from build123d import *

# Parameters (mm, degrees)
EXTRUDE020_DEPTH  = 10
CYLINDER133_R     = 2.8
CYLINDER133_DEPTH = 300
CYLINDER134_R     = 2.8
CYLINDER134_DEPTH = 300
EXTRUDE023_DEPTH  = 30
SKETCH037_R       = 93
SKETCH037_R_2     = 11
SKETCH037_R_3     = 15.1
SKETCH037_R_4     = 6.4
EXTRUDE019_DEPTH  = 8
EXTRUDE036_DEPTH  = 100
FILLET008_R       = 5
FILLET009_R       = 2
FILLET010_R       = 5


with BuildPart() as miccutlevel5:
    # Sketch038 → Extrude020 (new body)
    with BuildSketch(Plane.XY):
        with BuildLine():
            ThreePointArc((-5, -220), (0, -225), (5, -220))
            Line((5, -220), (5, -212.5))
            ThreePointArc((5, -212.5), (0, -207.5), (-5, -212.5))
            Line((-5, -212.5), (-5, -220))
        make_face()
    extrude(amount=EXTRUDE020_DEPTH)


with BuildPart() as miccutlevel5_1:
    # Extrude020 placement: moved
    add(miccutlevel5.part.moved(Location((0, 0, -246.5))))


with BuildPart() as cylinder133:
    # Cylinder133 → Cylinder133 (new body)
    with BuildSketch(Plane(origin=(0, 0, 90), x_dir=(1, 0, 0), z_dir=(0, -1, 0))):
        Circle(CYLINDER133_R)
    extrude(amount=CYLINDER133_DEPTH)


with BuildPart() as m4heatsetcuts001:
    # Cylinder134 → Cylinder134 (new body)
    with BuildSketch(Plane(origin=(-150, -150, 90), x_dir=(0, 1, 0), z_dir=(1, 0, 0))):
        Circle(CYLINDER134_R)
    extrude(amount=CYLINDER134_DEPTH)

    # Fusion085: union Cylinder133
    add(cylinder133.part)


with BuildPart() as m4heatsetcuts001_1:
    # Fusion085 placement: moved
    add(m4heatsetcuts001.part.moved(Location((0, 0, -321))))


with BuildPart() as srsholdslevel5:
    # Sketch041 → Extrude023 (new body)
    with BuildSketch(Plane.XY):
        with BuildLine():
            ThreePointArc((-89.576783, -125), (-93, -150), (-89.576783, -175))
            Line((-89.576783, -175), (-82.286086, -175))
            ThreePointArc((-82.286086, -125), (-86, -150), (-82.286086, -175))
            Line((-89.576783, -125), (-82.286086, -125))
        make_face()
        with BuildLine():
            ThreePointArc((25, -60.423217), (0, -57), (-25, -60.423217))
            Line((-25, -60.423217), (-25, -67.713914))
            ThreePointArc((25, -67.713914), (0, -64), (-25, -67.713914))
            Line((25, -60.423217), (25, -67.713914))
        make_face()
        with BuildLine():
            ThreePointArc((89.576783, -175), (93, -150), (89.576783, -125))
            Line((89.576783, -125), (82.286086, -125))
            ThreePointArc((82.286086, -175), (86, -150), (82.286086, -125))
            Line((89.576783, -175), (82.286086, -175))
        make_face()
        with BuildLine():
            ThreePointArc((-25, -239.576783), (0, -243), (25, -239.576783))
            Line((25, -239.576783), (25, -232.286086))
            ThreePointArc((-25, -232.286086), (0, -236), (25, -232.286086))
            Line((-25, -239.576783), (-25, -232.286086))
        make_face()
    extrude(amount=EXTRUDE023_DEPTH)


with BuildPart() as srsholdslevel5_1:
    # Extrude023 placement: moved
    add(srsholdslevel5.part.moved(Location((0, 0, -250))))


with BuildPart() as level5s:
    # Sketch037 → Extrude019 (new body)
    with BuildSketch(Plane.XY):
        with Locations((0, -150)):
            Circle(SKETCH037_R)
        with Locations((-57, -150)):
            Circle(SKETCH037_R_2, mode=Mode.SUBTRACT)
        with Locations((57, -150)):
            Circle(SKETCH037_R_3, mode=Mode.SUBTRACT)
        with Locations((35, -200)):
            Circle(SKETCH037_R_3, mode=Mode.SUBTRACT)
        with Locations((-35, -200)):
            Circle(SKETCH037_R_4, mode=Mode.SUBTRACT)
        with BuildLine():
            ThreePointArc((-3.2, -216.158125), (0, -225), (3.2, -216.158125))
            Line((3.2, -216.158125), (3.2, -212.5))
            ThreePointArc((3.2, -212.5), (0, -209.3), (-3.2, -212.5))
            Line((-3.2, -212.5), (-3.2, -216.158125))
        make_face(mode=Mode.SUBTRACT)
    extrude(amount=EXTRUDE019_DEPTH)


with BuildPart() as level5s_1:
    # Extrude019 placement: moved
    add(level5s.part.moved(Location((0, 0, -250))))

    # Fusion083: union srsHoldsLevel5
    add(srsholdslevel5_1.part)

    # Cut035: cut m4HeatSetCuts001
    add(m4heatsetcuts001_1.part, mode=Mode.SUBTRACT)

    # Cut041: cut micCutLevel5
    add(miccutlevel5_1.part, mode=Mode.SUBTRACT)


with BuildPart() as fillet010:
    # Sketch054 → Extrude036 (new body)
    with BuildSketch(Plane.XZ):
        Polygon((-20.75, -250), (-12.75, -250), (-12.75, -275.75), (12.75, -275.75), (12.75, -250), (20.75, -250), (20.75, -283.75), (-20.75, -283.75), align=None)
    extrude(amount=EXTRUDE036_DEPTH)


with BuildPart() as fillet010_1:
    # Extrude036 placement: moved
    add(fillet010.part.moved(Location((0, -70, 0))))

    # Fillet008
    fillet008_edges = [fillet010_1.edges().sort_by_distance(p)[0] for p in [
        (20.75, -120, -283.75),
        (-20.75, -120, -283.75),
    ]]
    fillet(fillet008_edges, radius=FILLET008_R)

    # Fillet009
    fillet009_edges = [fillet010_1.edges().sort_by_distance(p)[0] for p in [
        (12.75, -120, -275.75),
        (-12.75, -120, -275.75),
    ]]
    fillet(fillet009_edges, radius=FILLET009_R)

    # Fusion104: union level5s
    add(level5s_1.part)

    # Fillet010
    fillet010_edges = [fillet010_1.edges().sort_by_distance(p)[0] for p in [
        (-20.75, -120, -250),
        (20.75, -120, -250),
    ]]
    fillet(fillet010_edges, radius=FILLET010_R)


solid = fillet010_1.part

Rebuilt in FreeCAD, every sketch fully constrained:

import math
import FreeCAD as App
import Part
import Sketcher
Q = App.Units.Quantity


def edges_at(feature, points):
    """Names of the edges that pass closest to the given points."""
    edges = feature.Shape.Edges
    near = lambda p: min(range(len(edges)), key=lambda i: edges[i].distToShape(Part.Vertex(*p))[0])
    return sorted({f"Edge{near(p) + 1}" for p in points})


def add_polygon(sketch, points):
    """Adds a closed chain of lines whose ends are joined by coincident constraints."""
    first, n = sketch.GeometryCount, len(points)
    for a, b in zip(points, points[1:] + points[:1]):
        sketch.addGeometry(Part.LineSegment(App.Vector(*a, 0), App.Vector(*b, 0)), False)
    for i in range(n):
        sketch.addConstraint(Sketcher.Constraint("Coincident", first + i, 2, first + (i + 1) % n, 1))

doc = App.newDocument("Part")
body = doc.addObject("PartDesign::Body", "Body")

sketch1 = body.newObject("Sketcher::SketchObject", "Sketch")
sketch1.AttachmentSupport = (doc.getObject("XY_Plane"), [""])
sketch1.MapMode = "FlatFace"
sketch1.addGeometry(Part.ArcOfCircle(Part.Circle(App.Vector(0, -220, 0), App.Vector(0, 0, 1), 5), math.radians(180), math.radians(360)), False)
sketch1.addGeometry(Part.LineSegment(App.Vector(5, -220, 0), App.Vector(5, -212.5, 0)), False)
sketch1.addGeometry(Part.ArcOfCircle(Part.Circle(App.Vector(0, -212.5, 0), App.Vector(0, 0, 1), 5), math.radians(0), math.radians(180)), False)
sketch1.addGeometry(Part.LineSegment(App.Vector(-5, -212.5, 0), App.Vector(-5, -220, 0)), False)
sketch1.addConstraint(Sketcher.Constraint("Tangent", 0, 2, 1, 1))
sketch1.addConstraint(Sketcher.Constraint("Tangent", 1, 2, 2, 1))
sketch1.addConstraint(Sketcher.Constraint("Tangent", 2, 2, 3, 1))
sketch1.addConstraint(Sketcher.Constraint("Tangent", 3, 2, 0, 1))
sketch1.addConstraint(Sketcher.Constraint("Vertical", 1))
sketch1.addConstraint(Sketcher.Constraint("Vertical", 3))
sketch1.addConstraint(Sketcher.Constraint("PointOnObject", 0, 3, -2))
sketch1.addConstraint(Sketcher.Constraint("Radius", 0, Q("5 mm")))
sketch1.addConstraint(Sketcher.Constraint("DistanceY", 1, 1, 1, 2, Q("7.5 mm")))
sketch1.addConstraint(Sketcher.Constraint("DistanceY", 0, 3, -1, 1, Q("220 mm")))
pad1 = body.newObject("PartDesign::Pad", "Pad")
pad1.Profile = sketch1
pad1.Length = 10
body2 = doc.addObject("PartDesign::Body", "Body001")
doc.recompute()

body.Placement = App.Placement(App.Vector(0, 0, -246.5), App.Rotation(App.Vector(0, 0, 1), 0))
boolean = body2.newObject("PartDesign::Boolean", "Boolean")
boolean.Type = "Fuse"
boolean.addObjects([body])
body3 = doc.addObject("PartDesign::Body", "Body002")

sketch2 = body3.newObject("Sketcher::SketchObject", "Sketch001")
sketch2.AttachmentSupport = (doc.getObject("XZ_Plane002"), [""])
sketch2.MapMode = "FlatFace"
sketch2.addGeometry(Part.Circle(App.Vector(0, 90, 0), App.Vector(0, 0, 1), 2.8), False)
sketch2.addConstraint(Sketcher.Constraint("PointOnObject", 0, 3, -2))
sketch2.addConstraint(Sketcher.Constraint("Diameter", 0, Q("5.6 mm")))
sketch2.addConstraint(Sketcher.Constraint("DistanceY", -1, 1, 0, 3, Q("90 mm")))
pad2 = body3.newObject("PartDesign::Pad", "Pad001")
pad2.Profile = sketch2
pad2.Length = 300
body4 = doc.addObject("PartDesign::Body", "Body003")

sketch3 = body4.newObject("Sketcher::SketchObject", "Sketch002")
sketch3.AttachmentSupport = (doc.getObject("YZ_Plane003"), [""])
sketch3.MapMode = "FlatFace"
sketch3.AttachmentOffset = App.Placement(App.Vector(0, 0, -150), App.Rotation())
sketch3.addGeometry(Part.Circle(App.Vector(-150, 90, 0), App.Vector(0, 0, 1), 2.8), False)
sketch3.addConstraint(Sketcher.Constraint("Diameter", 0, Q("5.6 mm")))
sketch3.addConstraint(Sketcher.Constraint("DistanceX", 0, 3, -1, 1, Q("150 mm")))
sketch3.addConstraint(Sketcher.Constraint("DistanceY", -1, 1, 0, 3, Q("90 mm")))
pad3 = body4.newObject("PartDesign::Pad", "Pad002")
pad3.Profile = sketch3
pad3.Length = 300
doc.recompute()

boolean2 = body4.newObject("PartDesign::Boolean", "Boolean001")
boolean2.Type = "Fuse"
boolean2.addObjects([body3])
body5 = doc.addObject("PartDesign::Body", "Body004")
doc.recompute()

body4.Placement = App.Placement(App.Vector(0, 0, -321), App.Rotation(App.Vector(0, 0, 1), 0))
boolean3 = body5.newObject("PartDesign::Boolean", "Boolean002")
boolean3.Type = "Fuse"
boolean3.addObjects([body4])
body6 = doc.addObject("PartDesign::Body", "Body005")
body6.AllowCompound = True

sketch4 = body6.newObject("Sketcher::SketchObject", "Sketch003")
sketch4.AttachmentSupport = (doc.getObject("XY_Plane005"), [""])
sketch4.MapMode = "FlatFace"
sketch4.addGeometry(Part.ArcOfCircle(Part.Circle(App.Vector(0.000008, -150, 0), App.Vector(0, 0, 1), 93.000008), math.radians(164.406106), math.radians(195.593894)), False)
sketch4.addGeometry(Part.LineSegment(App.Vector(-89.576783, -175, 0), App.Vector(-82.286086, -175, 0)), False)
sketch4.addGeometry(Part.ArcOfCircle(Part.Circle(App.Vector(-0.000007, -150, 0), App.Vector(0, 0, 1), 85.999993), math.radians(163.100269), math.radians(196.899731)), False)
sketch4.addGeometry(Part.LineSegment(App.Vector(-82.286086, -125, 0), App.Vector(-89.576783, -125, 0)), False)
sketch4.addGeometry(Part.ArcOfCircle(Part.Circle(App.Vector(0, -150.000008, 0), App.Vector(0, 0, 1), 93.000008), math.radians(74.406106), math.radians(105.593894)), False)
sketch4.addGeometry(Part.LineSegment(App.Vector(-25, -60.423217, 0), App.Vector(-25, -67.713914, 0)), False)
sketch4.addGeometry(Part.ArcOfCircle(Part.Circle(App.Vector(0, -149.999993, 0), App.Vector(0, 0, 1), 85.999993), math.radians(73.100269), math.radians(106.899731)), False)
sketch4.addGeometry(Part.LineSegment(App.Vector(25, -67.713914, 0), App.Vector(25, -60.423217, 0)), False)
sketch4.addGeometry(Part.ArcOfCircle(Part.Circle(App.Vector(-0.000008, -150, 0), App.Vector(0, 0, 1), 93.000008), math.radians(-15.593894), math.radians(15.593894)), False)
sketch4.addGeometry(Part.LineSegment(App.Vector(89.576783, -125, 0), App.Vector(82.286086, -125, 0)), False)
sketch4.addGeometry(Part.ArcOfCircle(Part.Circle(App.Vector(0.000007, -150, 0), App.Vector(0, 0, 1), 85.999993), math.radians(-16.899731), math.radians(16.899731)), False)
sketch4.addGeometry(Part.LineSegment(App.Vector(82.286086, -175, 0), App.Vector(89.576783, -175, 0)), False)
sketch4.addGeometry(Part.ArcOfCircle(Part.Circle(App.Vector(0, -149.999992, 0), App.Vector(0, 0, 1), 93.000008), math.radians(-105.593894), math.radians(-74.406106)), False)
sketch4.addGeometry(Part.LineSegment(App.Vector(25, -239.576783, 0), App.Vector(25, -232.286086, 0)), False)
sketch4.addGeometry(Part.ArcOfCircle(Part.Circle(App.Vector(0, -150.000007, 0), App.Vector(0, 0, 1), 85.999993), math.radians(-106.899731), math.radians(-73.100269)), False)
sketch4.addGeometry(Part.LineSegment(App.Vector(-25, -232.286086, 0), App.Vector(-25, -239.576783, 0)), False)
sketch4.addConstraint(Sketcher.Constraint("Coincident", 0, 2, 1, 1))
sketch4.addConstraint(Sketcher.Constraint("Coincident", 1, 2, 2, 2))
sketch4.addConstraint(Sketcher.Constraint("Coincident", 2, 1, 3, 1))
sketch4.addConstraint(Sketcher.Constraint("Coincident", 3, 2, 0, 1))
sketch4.addConstraint(Sketcher.Constraint("Coincident", 4, 2, 5, 1))
sketch4.addConstraint(Sketcher.Constraint("Coincident", 5, 2, 6, 2))
sketch4.addConstraint(Sketcher.Constraint("Coincident", 6, 1, 7, 1))
sketch4.addConstraint(Sketcher.Constraint("Coincident", 7, 2, 4, 1))
sketch4.addConstraint(Sketcher.Constraint("Coincident", 8, 2, 9, 1))
sketch4.addConstraint(Sketcher.Constraint("Coincident", 9, 2, 10, 2))
sketch4.addConstraint(Sketcher.Constraint("Coincident", 10, 1, 11, 1))
sketch4.addConstraint(Sketcher.Constraint("Coincident", 11, 2, 8, 1))
sketch4.addConstraint(Sketcher.Constraint("Coincident", 12, 2, 13, 1))
sketch4.addConstraint(Sketcher.Constraint("Coincident", 13, 2, 14, 2))
sketch4.addConstraint(Sketcher.Constraint("Coincident", 14, 1, 15, 1))
sketch4.addConstraint(Sketcher.Constraint("Coincident", 15, 2, 12, 1))
sketch4.addConstraint(Sketcher.Constraint("Horizontal", 1))
sketch4.addConstraint(Sketcher.Constraint("Horizontal", 3))
sketch4.addConstraint(Sketcher.Constraint("Vertical", 5))
sketch4.addConstraint(Sketcher.Constraint("Vertical", 7))
sketch4.addConstraint(Sketcher.Constraint("Horizontal", 9))
sketch4.addConstraint(Sketcher.Constraint("Horizontal", 11))
sketch4.addConstraint(Sketcher.Constraint("Vertical", 13))
sketch4.addConstraint(Sketcher.Constraint("Vertical", 15))
sketch4.addConstraint(Sketcher.Constraint("Coincident", 6, 3, 2, 3))
sketch4.addConstraint(Sketcher.Constraint("Coincident", 8, 3, 2, 3))
sketch4.addConstraint(Sketcher.Constraint("Coincident", 10, 3, 0, 3))
sketch4.addConstraint(Sketcher.Constraint("Coincident", 12, 3, 6, 3))
sketch4.addConstraint(Sketcher.Constraint("Coincident", 14, 3, 2, 3))
sketch4.addConstraint(Sketcher.Constraint("PointOnObject", 4, 3, -2))
sketch4.addConstraint(Sketcher.Constraint("PointOnObject", 6, 3, -2))
sketch4.addConstraint(Sketcher.Constraint("DistanceY", 0, 3, -1, 1, Q("150 mm")))
sketch4.addConstraint(Sketcher.Constraint("DistanceY", 2, 3, -1, 1, Q("150 mm")))
sketch4.addConstraint(Sketcher.Constraint("DistanceY", 0, 2, -1, 1, Q("175 mm")))
sketch4.addConstraint(Sketcher.Constraint("DistanceY", 2, 1, -1, 1, Q("125 mm")))
sketch4.addConstraint(Sketcher.Constraint("DistanceX", 4, 2, -1, 1, Q("25 mm")))
sketch4.addConstraint(Sketcher.Constraint("DistanceX", -1, 1, 6, 1, Q("25 mm")))
sketch4.addConstraint(Sketcher.Constraint("DistanceY", 8, 2, -1, 1, Q("125 mm")))
sketch4.addConstraint(Sketcher.Constraint("DistanceY", 10, 1, -1, 1, Q("175 mm")))
sketch4.addConstraint(Sketcher.Constraint("DistanceX", -1, 1, 12, 2, Q("25 mm")))
sketch4.addConstraint(Sketcher.Constraint("DistanceX", 14, 1, -1, 1, Q("25 mm")))
sketch4.addConstraint(Sketcher.Constraint("Radius", 0, Q("93.000008 mm")))
sketch4.addConstraint(Sketcher.Constraint("Radius", 2, Q("85.999993 mm")))
sketch4.addConstraint(Sketcher.Constraint("Radius", 4, Q("93.000008 mm")))
sketch4.addConstraint(Sketcher.Constraint("Radius", 6, Q("85.999993 mm")))
sketch4.addConstraint(Sketcher.Constraint("Radius", 8, Q("93.000008 mm")))
sketch4.addConstraint(Sketcher.Constraint("Radius", 10, Q("85.999993 mm")))
sketch4.addConstraint(Sketcher.Constraint("Radius", 12, Q("93.000008 mm")))
sketch4.addConstraint(Sketcher.Constraint("Radius", 14, Q("85.999993 mm")))
sketch4.addConstraint(Sketcher.Constraint("DistanceX", 1, 1, 1, 2, Q("7.290697 mm")))
sketch4.addConstraint(Sketcher.Constraint("DistanceY", 5, 2, 5, 1, Q("7.290697 mm")))
pad4 = body6.newObject("PartDesign::Pad", "Pad003")
pad4.Profile = sketch4
pad4.Length = 30
body7 = doc.addObject("PartDesign::Body", "Body006")
body7.AllowCompound = True
doc.recompute()

body6.Placement = App.Placement(App.Vector(0, 0, -250), App.Rotation(App.Vector(0, 0, 1), 0))
boolean4 = body7.newObject("PartDesign::Boolean", "Boolean003")
boolean4.Type = "Fuse"
boolean4.addObjects([body6])
body8 = doc.addObject("PartDesign::Body", "Body007")

sketch5 = body8.newObject("Sketcher::SketchObject", "Sketch004")
sketch5.AttachmentSupport = (doc.getObject("XY_Plane007"), [""])
sketch5.MapMode = "FlatFace"
sketch5.addGeometry(Part.Circle(App.Vector(0, -150, 0), App.Vector(0, 0, 1), 93), False)
sketch5.addGeometry(Part.ArcOfCircle(Part.Circle(App.Vector(0, -220, 0), App.Vector(0, 0, 1), 5), math.radians(129.791818), math.radians(410.208182)), False)
sketch5.addGeometry(Part.LineSegment(App.Vector(-3.2, -216.158125, 0), App.Vector(-3.2, -212.5, 0)), False)
sketch5.addGeometry(Part.ArcOfCircle(Part.Circle(App.Vector(0, -212.5, 0), App.Vector(0, 0, 1), 3.2), math.radians(0), math.radians(180)), False)
sketch5.addGeometry(Part.LineSegment(App.Vector(3.2, -212.5, 0), App.Vector(3.2, -216.158125, 0)), False)
sketch5.addGeometry(Part.Circle(App.Vector(-35, -200, 0), App.Vector(0, 0, 1), 6.4), False)
sketch5.addGeometry(Part.Circle(App.Vector(35, -200, 0), App.Vector(0, 0, 1), 15.1), False)
sketch5.addGeometry(Part.Circle(App.Vector(-57, -150, 0), App.Vector(0, 0, 1), 11), False)
sketch5.addGeometry(Part.Circle(App.Vector(57, -150, 0), App.Vector(0, 0, 1), 15.1), False)
sketch5.addConstraint(Sketcher.Constraint("Coincident", 1, 1, 2, 1))
sketch5.addConstraint(Sketcher.Constraint("Tangent", 2, 2, 3, 2))
sketch5.addConstraint(Sketcher.Constraint("Tangent", 3, 1, 4, 1))
sketch5.addConstraint(Sketcher.Constraint("Coincident", 4, 2, 1, 2))
sketch5.addConstraint(Sketcher.Constraint("Vertical", 2))
sketch5.addConstraint(Sketcher.Constraint("Vertical", 4))
sketch5.addConstraint(Sketcher.Constraint("Equal", 6, 8))
sketch5.addConstraint(Sketcher.Constraint("Symmetric", 5, 3, 6, 3, -2))
sketch5.addConstraint(Sketcher.Constraint("Symmetric", 7, 3, 8, 3, -2))
sketch5.addConstraint(Sketcher.Constraint("Symmetric", 1, 1, 4, 2, -2))
sketch5.addConstraint(Sketcher.Constraint("PointOnObject", 0, 3, -2))
sketch5.addConstraint(Sketcher.Constraint("Horizontal", 0, 3, 7, 3))
sketch5.addConstraint(Sketcher.Constraint("Diameter", 0, Q("186 mm")))
sketch5.addConstraint(Sketcher.Constraint("Diameter", 7, Q("22 mm")))
sketch5.addConstraint(Sketcher.Constraint("Radius", 1, Q("5 mm")))
sketch5.addConstraint(Sketcher.Constraint("Diameter", 5, Q("12.8 mm")))
sketch5.addConstraint(Sketcher.Constraint("Diameter", 6, Q("30.2 mm")))
sketch5.addConstraint(Sketcher.Constraint("Radius", 3, Q("3.2 mm")))
sketch5.addConstraint(Sketcher.Constraint("DistanceY", 0, 3, -1, 1, Q("150 mm")))
sketch5.addConstraint(Sketcher.Constraint("DistanceY", 1, 3, -1, 1, Q("220 mm")))
sketch5.addConstraint(Sketcher.Constraint("DistanceX", 5, 3, -1, 1, Q("35 mm")))
sketch5.addConstraint(Sketcher.Constraint("DistanceY", 5, 3, -1, 1, Q("200 mm")))
sketch5.addConstraint(Sketcher.Constraint("DistanceX", 7, 3, -1, 1, Q("57 mm")))
sketch5.addConstraint(Sketcher.Constraint("DistanceY", 3, 3, -1, 1, Q("212.5 mm")))
pad5 = body8.newObject("PartDesign::Pad", "Pad004")
pad5.Profile = sketch5
pad5.Length = 8
body9 = doc.addObject("PartDesign::Body", "Body008")
doc.recompute()

body8.Placement = App.Placement(App.Vector(0, 0, -250), App.Rotation(App.Vector(0, 0, 1), 0))
boolean5 = body9.newObject("PartDesign::Boolean", "Boolean004")
boolean5.Type = "Fuse"
boolean5.addObjects([body8])
doc.recompute()

boolean6 = body9.newObject("PartDesign::Boolean", "Boolean005")
boolean6.Type = "Fuse"
boolean6.addObjects([body7])
doc.recompute()

boolean7 = body9.newObject("PartDesign::Boolean", "Boolean006")
boolean7.Type = "Cut"
boolean7.addObjects([body5])
doc.recompute()

boolean8 = body9.newObject("PartDesign::Boolean", "Boolean007")
boolean8.Type = "Cut"
boolean8.addObjects([body2])
body10 = doc.addObject("PartDesign::Body", "Body009")

sketch6 = body10.newObject("Sketcher::SketchObject", "Sketch005")
sketch6.AttachmentSupport = (doc.getObject("XZ_Plane009"), [""])
sketch6.MapMode = "FlatFace"
add_polygon(sketch6, [(-12.75, -250), (-20.75, -250), (-20.75, -283.75), (20.75, -283.75), (20.75, -250), (12.75, -250), (12.75, -275.75), (-12.75, -275.75)])
sketch6.addConstraint(Sketcher.Constraint("Horizontal", 0))
sketch6.addConstraint(Sketcher.Constraint("Vertical", 1))
sketch6.addConstraint(Sketcher.Constraint("Horizontal", 2))
sketch6.addConstraint(Sketcher.Constraint("Vertical", 3))
sketch6.addConstraint(Sketcher.Constraint("Horizontal", 4))
sketch6.addConstraint(Sketcher.Constraint("Vertical", 5))
sketch6.addConstraint(Sketcher.Constraint("Horizontal", 6))
sketch6.addConstraint(Sketcher.Constraint("Vertical", 7))
sketch6.addConstraint(Sketcher.Constraint("Symmetric", 0, 2, 3, 2, -2))
sketch6.addConstraint(Sketcher.Constraint("Equal", 0, 4))
sketch6.addConstraint(Sketcher.Constraint("DistanceX", 0, 2, 0, 1, Q("8 mm")))
sketch6.addConstraint(Sketcher.Constraint("DistanceX", 2, 1, 2, 2, Q("41.5 mm")))
sketch6.addConstraint(Sketcher.Constraint("DistanceY", 0, 2, -1, 1, Q("250 mm")))
sketch6.addConstraint(Sketcher.Constraint("DistanceY", 2, 2, 5, 2, Q("8 mm")))
sketch6.addConstraint(Sketcher.Constraint("DistanceY", 1, 2, 1, 1, Q("33.75 mm")))
pad6 = body10.newObject("PartDesign::Pad", "Pad005")
pad6.Profile = sketch6
pad6.Length = 100
body11 = doc.addObject("PartDesign::Body", "Body010")
doc.recompute()

body10.Placement = App.Placement(App.Vector(0, -70, 0), App.Rotation(App.Vector(0, 0, 1), 0))
boolean9 = body11.newObject("PartDesign::Boolean", "Boolean008")
boolean9.Type = "Fuse"
boolean9.addObjects([body10])
doc.recompute()

fillet = body11.newObject("PartDesign::Fillet", "Fillet")
fillet.Base = (boolean9, edges_at(boolean9, [(20.75, -120, -283.75), (-20.75, -120, -283.75)]))
fillet.Radius = 5
doc.recompute()

fillet2 = body11.newObject("PartDesign::Fillet", "Fillet001")
fillet2.Base = (fillet, edges_at(fillet, [(12.75, -120, -275.75), (-12.75, -120, -275.75)]))
fillet2.Radius = 2
doc.recompute()

boolean10 = body11.newObject("PartDesign::Boolean", "Boolean009")
boolean10.Type = "Fuse"
boolean10.addObjects([body9])
doc.recompute()

fillet3 = body11.newObject("PartDesign::Fillet", "Fillet002")
fillet3.Base = (boolean10, edges_at(boolean10, [(-20.75, -120, -250), (20.75, -120, -250)]))
fillet3.Radius = 5

doc.recompute()
